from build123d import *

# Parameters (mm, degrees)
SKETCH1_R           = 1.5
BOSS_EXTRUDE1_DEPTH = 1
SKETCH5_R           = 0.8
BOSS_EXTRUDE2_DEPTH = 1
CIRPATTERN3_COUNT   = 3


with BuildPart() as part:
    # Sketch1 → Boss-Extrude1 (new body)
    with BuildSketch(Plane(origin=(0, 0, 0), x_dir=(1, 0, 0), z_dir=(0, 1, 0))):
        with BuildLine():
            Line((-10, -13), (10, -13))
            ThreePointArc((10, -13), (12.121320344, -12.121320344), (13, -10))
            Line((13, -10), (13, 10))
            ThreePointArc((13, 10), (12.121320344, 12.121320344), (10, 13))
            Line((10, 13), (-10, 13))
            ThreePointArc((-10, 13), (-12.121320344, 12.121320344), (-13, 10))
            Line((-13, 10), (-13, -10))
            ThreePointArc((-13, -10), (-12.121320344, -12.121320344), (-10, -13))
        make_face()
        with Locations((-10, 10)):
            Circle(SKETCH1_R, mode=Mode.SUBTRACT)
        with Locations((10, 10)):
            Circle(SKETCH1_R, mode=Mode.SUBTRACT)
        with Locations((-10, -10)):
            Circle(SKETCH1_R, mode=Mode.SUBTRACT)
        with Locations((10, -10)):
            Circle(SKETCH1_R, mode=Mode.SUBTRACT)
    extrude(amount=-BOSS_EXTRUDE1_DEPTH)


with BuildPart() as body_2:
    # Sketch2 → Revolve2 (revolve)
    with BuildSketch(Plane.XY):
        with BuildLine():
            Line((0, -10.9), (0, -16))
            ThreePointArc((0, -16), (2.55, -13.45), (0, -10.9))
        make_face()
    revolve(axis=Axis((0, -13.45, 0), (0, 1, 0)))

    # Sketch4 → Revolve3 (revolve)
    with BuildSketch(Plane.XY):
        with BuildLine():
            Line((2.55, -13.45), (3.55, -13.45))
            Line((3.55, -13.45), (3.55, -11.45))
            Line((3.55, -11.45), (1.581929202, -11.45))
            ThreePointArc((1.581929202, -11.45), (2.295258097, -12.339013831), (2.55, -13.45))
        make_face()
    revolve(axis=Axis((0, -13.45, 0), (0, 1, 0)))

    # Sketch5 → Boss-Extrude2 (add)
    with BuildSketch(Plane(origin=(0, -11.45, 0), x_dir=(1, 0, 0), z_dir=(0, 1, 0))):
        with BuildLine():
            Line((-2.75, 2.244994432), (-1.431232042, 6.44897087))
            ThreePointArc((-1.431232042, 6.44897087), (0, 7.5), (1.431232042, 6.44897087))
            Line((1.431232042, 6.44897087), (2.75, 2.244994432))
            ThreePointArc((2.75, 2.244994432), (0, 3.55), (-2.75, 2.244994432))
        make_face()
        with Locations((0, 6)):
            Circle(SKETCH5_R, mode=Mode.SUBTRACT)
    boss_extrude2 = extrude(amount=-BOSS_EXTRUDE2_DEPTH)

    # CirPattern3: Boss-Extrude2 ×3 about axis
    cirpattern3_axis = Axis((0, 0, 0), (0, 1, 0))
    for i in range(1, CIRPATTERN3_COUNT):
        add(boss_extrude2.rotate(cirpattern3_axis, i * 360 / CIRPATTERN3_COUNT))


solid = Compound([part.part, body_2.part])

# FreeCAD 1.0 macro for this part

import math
import FreeCAD as App
import Part
import Sketcher

doc = App.newDocument("Part")
body = doc.addObject("PartDesign::Body", "Body")

# Sketch on XZ plane
sketch1 = doc.addObject("Sketcher::SketchObject", "Sketch")
body.addObject(sketch1)
sketch1.AttachmentSupport = (doc.XZ_Plane, [""])
sketch1.MapMode = "FlatFace"
sketch1.addGeometry([
    Part.LineSegment(App.Vector(-10, 13, 0), App.Vector(10, 13, 0)),  # 0
    Part.ArcOfCircle(Part.Circle(App.Vector(10, 10, 0), App.Vector(0, 0, 1), 3), math.radians(0), math.radians(90)),  # 1
    Part.LineSegment(App.Vector(13, 10, 0), App.Vector(13, -10, 0)),  # 2
    Part.ArcOfCircle(Part.Circle(App.Vector(10, -10, 0), App.Vector(0, 0, 1), 3), math.radians(-90), math.radians(0)),  # 3
    Part.LineSegment(App.Vector(10, -13, 0), App.Vector(-10, -13, 0)),  # 4
    Part.ArcOfCircle(Part.Circle(App.Vector(-10, -10, 0), App.Vector(0, 0, 1), 3), math.radians(180), math.radians(270)),  # 5
    Part.LineSegment(App.Vector(-13, -10, 0), App.Vector(-13, 10, 0)),  # 6
    Part.ArcOfCircle(Part.Circle(App.Vector(-10, 10, 0), App.Vector(0, 0, 1), 3), math.radians(90), math.radians(180)),  # 7
    Part.Circle(App.Vector(-10, 10, 0), App.Vector(0, 0, 1), 1.5),  # 8
    Part.Circle(App.Vector(10, 10, 0), App.Vector(0, 0, 1), 1.5),  # 9
    Part.Circle(App.Vector(-10, -10, 0), App.Vector(0, 0, 1), 1.5),  # 10
    Part.Circle(App.Vector(10, -10, 0), App.Vector(0, 0, 1), 1.5),  # 11
], False)
sketch1.addConstraint([
    Sketcher.Constraint("Tangent", 0, 2, 1, 2),
    Sketcher.Constraint("Tangent", 1, 1, 2, 1),
    Sketcher.Constraint("Tangent", 2, 2, 3, 2),
    Sketcher.Constraint("Tangent", 3, 1, 4, 1),
    Sketcher.Constraint("Tangent", 4, 2, 5, 2),
    Sketcher.Constraint("Tangent", 5, 1, 6, 1),
    Sketcher.Constraint("Tangent", 6, 2, 7, 2),
    Sketcher.Constraint("Tangent", 7, 1, 0, 1),
    Sketcher.Constraint("Horizontal", 0),
    Sketcher.Constraint("Vertical", 2),
    Sketcher.Constraint("Horizontal", 4),
    Sketcher.Constraint("Vertical", 6),
    Sketcher.Constraint("Coincident", 8, 3, 7, 3),
    Sketcher.Constraint("Coincident", 9, 3, 1, 3),
    Sketcher.Constraint("Coincident", 10, 3, 5, 3),
    Sketcher.Constraint("Coincident", 11, 3, 3, 3),
    Sketcher.Constraint("Equal", 1, 3),
    Sketcher.Constraint("Equal", 3, 5),
    Sketcher.Constraint("Equal", 5, 7),
    Sketcher.Constraint("Equal", 8, 9),
    Sketcher.Constraint("Equal", 9, 10),
    Sketcher.Constraint("Equal", 10, 11),
    Sketcher.Constraint("Symmetric", 1, 3, 5, 3, -1, 1),
    Sketcher.Constraint("Equal", 4, 2),
    Sketcher.Constraint("Diameter", 8, 3.0),
    Sketcher.Constraint("Radius", 1, 3.0),
    Sketcher.Constraint("DistanceX", 0, 1, 0, 2, 20.0),
])
pad1 = doc.addObject("PartDesign::Pad", "Pad")
body.addObject(pad1)
pad1.Profile = sketch1
pad1.Length = 1
body2 = doc.addObject("PartDesign::Body", "Body001")

# Sketch on XY plane
sketch2 = doc.addObject("Sketcher::SketchObject", "Sketch001")
body2.addObject(sketch2)
sketch2.AttachmentSupport = (doc.getObject("XY_Plane001"), [""])
sketch2.MapMode = "FlatFace"
sketch2.addGeometry([
    Part.LineSegment(App.Vector(0, -10.9, 0), App.Vector(0, -16, 0)),
    Part.ArcOfCircle(Part.Circle(App.Vector(0, -13.4, 0), App.Vector(0, 0, 1), 2.5), math.radians(-90), math.radians(90)),
], False)
sketch2.addConstraint([
    Sketcher.Constraint("Coincident", 0, 1, 1, 2),
    Sketcher.Constraint("Coincident", 1, 1, 0, 2),
    Sketcher.Constraint("Vertical", 0),
    Sketcher.Constraint("PointOnObject", 1, 3, -2),
    Sketcher.Constraint("PointOnObject", 0, 1, -2),
    Sketcher.Constraint("Radius", 1, 2.55),
    Sketcher.Constraint("DistanceY", 1, 1, -1, 1, 16.0),
])
revolution = doc.addObject("PartDesign::Revolution", "Revolution")
body2.addObject(revolution)
revolution.Profile = sketch2
revolution.ReferenceAxis = (sketch2, ["V_Axis"])
revolution.Angle = 360

# Sketch on XY plane
sketch3 = doc.addObject("Sketcher::SketchObject", "Sketch002")
body2.addObject(sketch3)
sketch3.AttachmentSupport = (doc.getObject("XY_Plane001"), [""])
sketch3.MapMode = "FlatFace"
sketch3.addGeometry([
    Part.LineSegment(App.Vector(2.5, -13.4, 0), App.Vector(3.5, -13.4, 0)),
    Part.LineSegment(App.Vector(3.5, -13.4, 0), App.Vector(3.5, -11.4, 0)),
    Part.LineSegment(App.Vector(3.5, -11.4, 0), App.Vector(1.6, -11.4, 0)),
    Part.ArcOfCircle(Part.Circle(App.Vector(0, -13.4, 0), App.Vector(0, 0, 1), 2.6), math.radians(0), math.radians(52)),
], False)
sketch3.addConstraint([
    Sketcher.Constraint("Coincident", 0, 2, 1, 1),
    Sketcher.Constraint("Coincident", 1, 2, 2, 1),
    Sketcher.Constraint("Coincident", 2, 2, 3, 2),
    Sketcher.Constraint("Coincident", 3, 1, 0, 1),
    Sketcher.Constraint("Horizontal", 0),
    Sketcher.Constraint("Vertical", 1),
    Sketcher.Constraint("Horizontal", 2),
    Sketcher.Constraint("PointOnObject", 3, 3, -2),
    Sketcher.Constraint("Horizontal", 3, 3, 0, 2),
    Sketcher.Constraint("DistanceX", 0, 1, 0, 2, 1.0),
    Sketcher.Constraint("DistanceY", 1, 1, 1, 2, 2.0),
    Sketcher.Constraint("Radius", 3, 2.55),
    Sketcher.Constraint("DistanceY", 3, 3, -1, 1, 13.45),
])
revolution2 = doc.addObject("PartDesign::Revolution", "Revolution001")
body2.addObject(revolution2)
revolution2.Profile = sketch3
revolution2.ReferenceAxis = (sketch3, ["V_Axis"])
revolution2.Angle = 360

# Sketch on XZ plane
sketch4 = doc.addObject("Sketcher::SketchObject", "Sketch003")
body2.addObject(sketch4)
sketch4.AttachmentSupport = (doc.getObject("XZ_Plane001"), [""])
sketch4.MapMode = "FlatFace"
sketch4.AttachmentOffset = App.Placement(App.Vector(0, 0, 11.45), App.Rotation())
sketch4.addGeometry([
    Part.LineSegment(App.Vector(-1.4, -6.4, 0), App.Vector(-2.8, -2.2, 0)),  # 0
    Part.ArcOfCircle(Part.Circle(App.Vector(0, 0, 0), App.Vector(0, 0, 1), 3.5), math.radians(-141), math.radians(-39)),  # 1
    Part.LineSegment(App.Vector(2.8, -2.2, 0), App.Vector(1.4, -6.4, 0)),  # 2
    Part.ArcOfCircle(Part.Circle(App.Vector(0, -6, 0), App.Vector(0, 0, 1), 1.5), math.radians(-163), math.radians(-17)),  # 3
    Part.Circle(App.Vector(0, -6, 0), App.Vector(0, 0, 1), 0.8),  # 4
], False)
sketch4.addConstraint([
    Sketcher.Constraint("Coincident", 0, 2, 1, 1),
    Sketcher.Constraint("Coincident", 1, 2, 2, 1),
    Sketcher.Constraint("Tangent", 2, 2, 3, 2),
    Sketcher.Constraint("Tangent", 3, 1, 0, 1),
    Sketcher.Constraint("Coincident", 1, 3, -1, 1),
    Sketcher.Constraint("Coincident", 4, 3, 3, 3),
    Sketcher.Constraint("Symmetric", 2, 2, 3, 1, -2),
    Sketcher.Constraint("Diameter", 4, 1.6),
    Sketcher.Constraint("Radius", 3, 1.5),
    Sketcher.Constraint("Radius", 1, 3.55),
    Sketcher.Constraint("DistanceY", 3, 3, -1, 1, 6.0),
    Sketcher.Constraint("DistanceX", 0, 2, 1, 2, 5.5),
])
pad2 = doc.addObject("PartDesign::Pad", "Pad001")
body2.addObject(pad2)
pad2.Profile = sketch4
pad2.Length = 1
doc.recompute()

polarpattern = doc.addObject("PartDesign::PolarPattern", "PolarPattern")
body2.addObject(polarpattern)
polarpattern.Originals = [pad2]
polarpattern.Axis = (doc.getObject("Y_Axis001"), [""])
polarpattern.Angle = 360
polarpattern.Occurrences = 3
body2.Tip = polarpattern

doc.recompute()
